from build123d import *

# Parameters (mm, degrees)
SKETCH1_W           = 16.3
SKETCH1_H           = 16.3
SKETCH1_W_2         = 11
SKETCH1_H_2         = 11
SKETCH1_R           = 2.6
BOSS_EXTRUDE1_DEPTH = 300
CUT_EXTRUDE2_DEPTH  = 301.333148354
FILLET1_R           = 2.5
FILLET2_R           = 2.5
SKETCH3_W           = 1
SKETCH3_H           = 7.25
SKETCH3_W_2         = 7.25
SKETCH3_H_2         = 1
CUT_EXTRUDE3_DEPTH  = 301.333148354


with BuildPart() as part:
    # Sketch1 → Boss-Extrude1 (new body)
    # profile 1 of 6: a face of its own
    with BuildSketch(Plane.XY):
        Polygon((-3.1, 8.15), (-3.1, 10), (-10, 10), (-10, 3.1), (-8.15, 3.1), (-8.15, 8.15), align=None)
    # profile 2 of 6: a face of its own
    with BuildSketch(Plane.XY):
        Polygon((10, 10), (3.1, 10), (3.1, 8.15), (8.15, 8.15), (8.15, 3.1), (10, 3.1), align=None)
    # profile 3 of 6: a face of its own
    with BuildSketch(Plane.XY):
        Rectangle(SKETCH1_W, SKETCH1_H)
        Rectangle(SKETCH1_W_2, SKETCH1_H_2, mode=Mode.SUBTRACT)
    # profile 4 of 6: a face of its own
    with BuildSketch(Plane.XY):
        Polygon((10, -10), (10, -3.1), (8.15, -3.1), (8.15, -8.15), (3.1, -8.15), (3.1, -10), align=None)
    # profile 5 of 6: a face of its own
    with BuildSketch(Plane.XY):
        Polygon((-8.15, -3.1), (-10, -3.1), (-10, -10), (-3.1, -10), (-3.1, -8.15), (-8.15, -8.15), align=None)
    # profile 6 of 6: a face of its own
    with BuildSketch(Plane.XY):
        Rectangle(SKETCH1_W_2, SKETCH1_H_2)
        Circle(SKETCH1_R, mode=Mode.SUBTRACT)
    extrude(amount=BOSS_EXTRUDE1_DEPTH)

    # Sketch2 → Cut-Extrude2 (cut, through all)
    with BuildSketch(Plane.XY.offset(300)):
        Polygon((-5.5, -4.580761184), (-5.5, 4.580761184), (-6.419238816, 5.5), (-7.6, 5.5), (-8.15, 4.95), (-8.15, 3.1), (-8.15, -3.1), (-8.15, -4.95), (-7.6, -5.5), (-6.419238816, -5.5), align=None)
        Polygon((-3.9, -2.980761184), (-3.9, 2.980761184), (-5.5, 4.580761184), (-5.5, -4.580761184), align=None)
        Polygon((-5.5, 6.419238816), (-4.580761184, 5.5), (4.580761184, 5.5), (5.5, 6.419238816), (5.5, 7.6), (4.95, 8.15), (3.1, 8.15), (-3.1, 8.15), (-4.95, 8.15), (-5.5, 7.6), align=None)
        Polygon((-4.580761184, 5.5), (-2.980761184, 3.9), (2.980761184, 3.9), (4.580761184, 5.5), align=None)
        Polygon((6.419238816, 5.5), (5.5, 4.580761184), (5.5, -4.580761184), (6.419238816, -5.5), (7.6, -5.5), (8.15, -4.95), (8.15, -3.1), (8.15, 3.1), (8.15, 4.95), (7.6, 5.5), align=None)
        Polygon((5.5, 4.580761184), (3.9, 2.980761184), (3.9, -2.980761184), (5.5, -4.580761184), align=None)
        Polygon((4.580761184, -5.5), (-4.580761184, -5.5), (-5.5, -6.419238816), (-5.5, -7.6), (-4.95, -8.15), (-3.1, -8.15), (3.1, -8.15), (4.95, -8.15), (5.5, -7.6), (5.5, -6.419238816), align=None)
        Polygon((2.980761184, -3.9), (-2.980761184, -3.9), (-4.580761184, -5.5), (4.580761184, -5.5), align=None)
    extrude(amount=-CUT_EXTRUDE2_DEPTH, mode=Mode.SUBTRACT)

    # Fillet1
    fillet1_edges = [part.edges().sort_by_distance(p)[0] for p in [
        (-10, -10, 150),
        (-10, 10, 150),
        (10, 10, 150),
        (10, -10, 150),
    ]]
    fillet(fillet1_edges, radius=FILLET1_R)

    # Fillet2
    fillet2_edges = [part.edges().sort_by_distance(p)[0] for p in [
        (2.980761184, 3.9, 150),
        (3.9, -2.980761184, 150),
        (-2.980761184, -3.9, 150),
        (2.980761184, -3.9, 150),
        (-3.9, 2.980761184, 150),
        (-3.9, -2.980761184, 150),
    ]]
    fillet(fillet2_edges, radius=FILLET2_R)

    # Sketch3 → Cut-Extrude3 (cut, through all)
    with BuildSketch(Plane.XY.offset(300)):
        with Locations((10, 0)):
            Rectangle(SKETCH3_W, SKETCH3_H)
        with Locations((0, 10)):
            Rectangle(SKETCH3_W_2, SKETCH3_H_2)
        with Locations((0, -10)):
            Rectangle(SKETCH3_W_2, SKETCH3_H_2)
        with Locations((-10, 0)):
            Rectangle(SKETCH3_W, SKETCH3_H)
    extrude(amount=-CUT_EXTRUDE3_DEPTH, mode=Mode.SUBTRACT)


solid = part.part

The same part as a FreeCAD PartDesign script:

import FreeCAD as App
import Part
import Sketcher
Q = App.Units.Quantity


def edges_at(feature, points):
    """Names of the edges that pass closest to the given points."""
    edges = feature.Shape.Edges
    near = lambda p: min(range(len(edges)), key=lambda i: edges[i].distToShape(Part.Vertex(*p))[0])
    return sorted({f"Edge{near(p) + 1}" for p in points})


def add_polygon(sketch, points):
    """Adds a closed chain of lines whose ends are joined by coincident constraints."""
    first, n = sketch.GeometryCount, len(points)
    for a, b in zip(points, points[1:] + points[:1]):
        sketch.addGeometry(Part.LineSegment(App.Vector(*a, 0), App.Vector(*b, 0)), False)
    for i in range(n):
        sketch.addConstraint(Sketcher.Constraint("Coincident", first + i, 2, first + (i + 1) % n, 1))

doc = App.newDocument("Part")
body = doc.addObject("PartDesign::Body", "Body")

# Sketch on XY plane
sketch1 = body.newObject("Sketcher::SketchObject", "Sketch")
sketch1.AttachmentSupport = (doc.getObject("XY_Plane"), [""])
sketch1.MapMode = "FlatFace"
add_polygon(sketch1, [(-3.1, 8.15), (-3.1, 10), (-10, 10), (-10, 3.1), (-8.15, 3.1), (-8.15, -3.1), (-10, -3.1), (-10, -10), (-3.1, -10), (-3.1, -8.15), (3.1, -8.15), (3.1, -10), (10, -10), (10, -3.1), (8.15, -3.1), (8.15, 3.1), (10, 3.1), (10, 10), (3.1, 10), (3.1, 8.15)])  # lines 0-19
sketch1.addGeometry(Part.Circle(App.Vector(0, 0, 0), App.Vector(0, 0, 1), 2.6), False)  # 20
sketch1.addConstraint(Sketcher.Constraint("Vertical", 0))
sketch1.addConstraint(Sketcher.Constraint("Horizontal", 1))
sketch1.addConstraint(Sketcher.Constraint("Vertical", 2))
sketch1.addConstraint(Sketcher.Constraint("Horizontal", 3))
sketch1.addConstraint(Sketcher.Constraint("Vertical", 4))
sketch1.addConstraint(Sketcher.Constraint("Horizontal", 5))
sketch1.addConstraint(Sketcher.Constraint("Vertical", 6))
sketch1.addConstraint(Sketcher.Constraint("Horizontal", 7))
sketch1.addConstraint(Sketcher.Constraint("Vertical", 8))
sketch1.addConstraint(Sketcher.Constraint("Horizontal", 9))
sketch1.addConstraint(Sketcher.Constraint("Vertical", 10))
sketch1.addConstraint(Sketcher.Constraint("Horizontal", 11))
sketch1.addConstraint(Sketcher.Constraint("Vertical", 12))
sketch1.addConstraint(Sketcher.Constraint("Horizontal", 13))
sketch1.addConstraint(Sketcher.Constraint("Vertical", 14))
sketch1.addConstraint(Sketcher.Constraint("Horizontal", 15))
sketch1.addConstraint(Sketcher.Constraint("Vertical", 16))
sketch1.addConstraint(Sketcher.Constraint("Horizontal", 17))
sketch1.addConstraint(Sketcher.Constraint("Vertical", 18))
sketch1.addConstraint(Sketcher.Constraint("Horizontal", 19))
sketch1.addConstraint(Sketcher.Constraint("Coincident", 20, 3, -1, 1))
sketch1.addConstraint(Sketcher.Constraint("Symmetric", 0, 2, 10, 2, -1, 1))
sketch1.addConstraint(Sketcher.Constraint("Symmetric", 2, 2, 12, 2, -1, 1))
sketch1.addConstraint(Sketcher.Constraint("Symmetric", 4, 2, 14, 2, -1, 1))
sketch1.addConstraint(Sketcher.Constraint("Symmetric", 6, 2, 16, 2, -1, 1))
sketch1.addConstraint(Sketcher.Constraint("Symmetric", 8, 2, 18, 2, -1, 1))
sketch1.addConstraint(Sketcher.Constraint("Symmetric", 7, 2, 10, 2, -2))
sketch1.addConstraint(Sketcher.Constraint("Symmetric", 5, 2, 12, 2, -2))
sketch1.addConstraint(Sketcher.Constraint("Equal", 15, 0))
sketch1.addConstraint(Sketcher.Constraint("Equal", 17, 2))
sketch1.addConstraint(Sketcher.Constraint("Equal", 19, 4))
sketch1.addConstraint(Sketcher.Constraint("Diameter", 20, Q("5.2 mm")))
sketch1.addConstraint(Sketcher.Constraint("DistanceX", 1, 2, 1, 1, Q("6.9 mm")))
sketch1.addConstraint(Sketcher.Constraint("DistanceX", 9, 1, 9, 2, Q("6.2 mm")))
sketch1.addConstraint(Sketcher.Constraint("DistanceX", 3, 1, 3, 2, Q("1.85 mm")))
pad1 = body.newObject("PartDesign::Pad", "Pad")
pad1.Profile = sketch1
pad1.Length = 300

# Sketch on XY plane
sketch2 = body.newObject("Sketcher::SketchObject", "Sketch001")
sketch2.AttachmentSupport = (doc.getObject("XY_Plane"), [""])
sketch2.MapMode = "FlatFace"
sketch2.AttachmentOffset = App.Placement(App.Vector(0, 0, 300), App.Rotation())
add_polygon(sketch2, [(-6.419239, 5.5), (-7.6, 5.5), (-8.15, 4.95), (-8.15, -4.95), (-7.6, -5.5), (-6.419239, -5.5), (-3.9, -2.980761), (-3.9, 2.980761)])  # lines 0-7
add_polygon(sketch2, [(-5.5, 6.419239), (-2.980761, 3.9), (2.980761, 3.9), (5.5, 6.419239), (5.5, 7.6), (4.95, 8.15), (-4.95, 8.15), (-5.5, 7.6)])  # lines 8-15
add_polygon(sketch2, [(6.419239, 5.5), (3.9, 2.980761), (3.9, -2.980761), (6.419239, -5.5), (7.6, -5.5), (8.15, -4.95), (8.15, 4.95), (7.6, 5.5)])  # lines 16-23
add_polygon(sketch2, [(-5.5, -6.419239), (-5.5, -7.6), (-4.95, -8.15), (4.95, -8.15), (5.5, -7.6), (5.5, -6.419239), (2.980761, -3.9), (-2.980761, -3.9)])  # lines 24-31
sketch2.addConstraint(Sketcher.Constraint("Horizontal", 0))
sketch2.addConstraint(Sketcher.Constraint("Vertical", 2))
sketch2.addConstraint(Sketcher.Constraint("Horizontal", 4))
sketch2.addConstraint(Sketcher.Constraint("Vertical", 6))
sketch2.addConstraint(Sketcher.Constraint("Horizontal", 9))
sketch2.addConstraint(Sketcher.Constraint("Vertical", 11))
sketch2.addConstraint(Sketcher.Constraint("Horizontal", 13))
sketch2.addConstraint(Sketcher.Constraint("Vertical", 15))
sketch2.addConstraint(Sketcher.Constraint("Vertical", 17))
sketch2.addConstraint(Sketcher.Constraint("Horizontal", 19))
sketch2.addConstraint(Sketcher.Constraint("Vertical", 21))
sketch2.addConstraint(Sketcher.Constraint("Horizontal", 23))
sketch2.addConstraint(Sketcher.Constraint("Vertical", 24))
sketch2.addConstraint(Sketcher.Constraint("Horizontal", 26))
sketch2.addConstraint(Sketcher.Constraint("Vertical", 28))
sketch2.addConstraint(Sketcher.Constraint("Horizontal", 30))
sketch2.addConstraint(Sketcher.Constraint("Symmetric", 5, 2, 16, 2, -1, 1))
sketch2.addConstraint(Sketcher.Constraint("Symmetric", 7, 2, 18, 2, -1, 1))
sketch2.addConstraint(Sketcher.Constraint("Symmetric", 1, 2, 20, 2, -1, 1))
sketch2.addConstraint(Sketcher.Constraint("Symmetric", 3, 2, 22, 2, -1, 1))
sketch2.addConstraint(Sketcher.Constraint("Symmetric", 11, 2, 24, 2, -1, 1))
sketch2.addConstraint(Sketcher.Constraint("Symmetric", 12, 2, 25, 2, -1, 1))
sketch2.addConstraint(Sketcher.Constraint("Symmetric", 14, 2, 27, 2, -1, 1))
sketch2.addConstraint(Sketcher.Constraint("Symmetric", 8, 2, 29, 2, -1, 1))
sketch2.addConstraint(Sketcher.Constraint("Symmetric", 11, 2, 14, 2, -2))
sketch2.addConstraint(Sketcher.Constraint("Symmetric", 4, 2, 18, 2, -2))
sketch2.addConstraint(Sketcher.Constraint("Perpendicular", 1, 3))
sketch2.addConstraint(Sketcher.Constraint("Perpendicular", 3, 5))
sketch2.addConstraint(Sketcher.Constraint("Perpendicular", 5, 7))
sketch2.addConstraint(Sketcher.Constraint("Parallel", 7, 8))
sketch2.addConstraint(Sketcher.Constraint("Perpendicular", 8, 10))
sketch2.addConstraint(Sketcher.Constraint("Perpendicular", 10, 12))
sketch2.addConstraint(Sketcher.Constraint("Perpendicular", 12, 14))
sketch2.addConstraint(Sketcher.Constraint("Parallel", 14, 16))
sketch2.addConstraint(Sketcher.Constraint("Perpendicular", 16, 18))
sketch2.addConstraint(Sketcher.Constraint("Perpendicular", 18, 20))
sketch2.addConstraint(Sketcher.Constraint("Perpendicular", 20, 22))
sketch2.addConstraint(Sketcher.Constraint("Perpendicular", 25, 27))
sketch2.addConstraint(Sketcher.Constraint("Perpendicular", 27, 29))
sketch2.addConstraint(Sketcher.Constraint("Perpendicular", 29, 31))
sketch2.addConstraint(Sketcher.Constraint("Horizontal", 10, 2, 15, 2))
sketch2.addConstraint(Sketcher.Constraint("Horizontal", 6, 2, 16, 2))
sketch2.addConstraint(Sketcher.Constraint("Horizontal", 2, 2, 20, 2))
sketch2.addConstraint(Sketcher.Constraint("Horizontal", 28, 2, 31, 2))
sketch2.addConstraint(Sketcher.Constraint("Equal", 26, 2))
sketch2.addConstraint(Sketcher.Constraint("Equal", 30, 6))
sketch2.addConstraint(Sketcher.Constraint("Equal", 23, 11))
sketch2.addConstraint(Sketcher.Constraint("Equal", 7, 8))
sketch2.addConstraint(Sketcher.Constraint("DistanceX", 13, 2, 13, 1, Q("9.9 mm")))
sketch2.addConstraint(Sketcher.Constraint("DistanceY", 3, 2, 0, 2, Q("11 mm")))
sketch2.addConstraint(Sketcher.Constraint("DistanceX", 0, 2, -1, 1, Q("7.6 mm")))
sketch2.addConstraint(Sketcher.Constraint("DistanceX", 5, 2, -1, 1, Q("3.9 mm")))
sketch2.addConstraint(Sketcher.Constraint("DistanceY", -1, 1, 8, 2, Q("3.9 mm")))
sketch2.addConstraint(Sketcher.Constraint("DistanceX", 0, 2, 0, 1, Q("1.180761 mm")))
pocket1 = body.newObject("PartDesign::Pocket", "Pocket")
pocket1.Profile = sketch2
pocket1.Type = "ThroughAll"
doc.recompute()

fillet = body.newObject("PartDesign::Fillet", "Fillet")
fillet.Base = (pocket1, edges_at(pocket1, [
    (-10, -10, 150),
    (-10, 10, 150),
    (10, 10, 150),
    (10, -10, 150),
]))
fillet.Radius = 2.5
doc.recompute()

fillet2 = body.newObject("PartDesign::Fillet", "Fillet001")
fillet2.Base = (fillet, edges_at(fillet, [
    (2.981, 3.9, 150),
    (3.9, -2.981, 150),
    (-2.981, -3.9, 150),
    (2.981, -3.9, 150),
    (-3.9, 2.981, 150),
    (-3.9, -2.981, 150),
]))
fillet2.Radius = 2.5

# Sketch on XY plane
sketch3 = body.newObject("Sketcher::SketchObject", "Sketch002")
sketch3.AttachmentSupport = (doc.getObject("XY_Plane"), [""])
sketch3.MapMode = "FlatFace"
sketch3.AttachmentOffset = App.Placement(App.Vector(0, 0, 300), App.Rotation())
add_polygon(sketch3, [(9.5, 3.625), (9.5, -3.625), (10.5, -3.625), (10.5, 3.625)])  # lines 0-3
add_polygon(sketch3, [(-3.625, 10.5), (-3.625, 9.5), (3.625, 9.5), (3.625, 10.5)])  # lines 4-7
add_polygon(sketch3, [(-3.625, -9.5), (-3.625, -10.5), (3.625, -10.5), (3.625, -9.5)])  # lines 8-11
add_polygon(sketch3, [(-10.5, 3.625), (-10.5, -3.625), (-9.5, -3.625), (-9.5, 3.625)])  # lines 12-15
sketch3.addConstraint(Sketcher.Constraint("Vertical", 0))
sketch3.addConstraint(Sketcher.Constraint("Horizontal", 1))
sketch3.addConstraint(Sketcher.Constraint("Vertical", 2))
sketch3.addConstraint(Sketcher.Constraint("Horizontal", 3))
sketch3.addConstraint(Sketcher.Constraint("Vertical", 4))
sketch3.addConstraint(Sketcher.Constraint("Horizontal", 5))
sketch3.addConstraint(Sketcher.Constraint("Vertical", 6))
sketch3.addConstraint(Sketcher.Constraint("Horizontal", 7))
sketch3.addConstraint(Sketcher.Constraint("Vertical", 8))
sketch3.addConstraint(Sketcher.Constraint("Horizontal", 9))
sketch3.addConstraint(Sketcher.Constraint("Vertical", 10))
sketch3.addConstraint(Sketcher.Constraint("Horizontal", 11))
sketch3.addConstraint(Sketcher.Constraint("Vertical", 12))
sketch3.addConstraint(Sketcher.Constraint("Horizontal", 13))
sketch3.addConstraint(Sketcher.Constraint("Vertical", 14))
sketch3.addConstraint(Sketcher.Constraint("Horizontal", 15))
sketch3.addConstraint(Sketcher.Constraint("Symmetric", 6, 2, 8, 2, -1, 1))
sketch3.addConstraint(Sketcher.Constraint("Symmetric", 4, 2, 10, 2, -1, 1))
sketch3.addConstraint(Sketcher.Constraint("Symmetric", 2, 2, 12, 2, -1, 1))
sketch3.addConstraint(Sketcher.Constraint("Symmetric", 0, 2, 14, 2, -1, 1))
sketch3.addConstraint(Sketcher.Constraint("Horizontal", 1, 2, 12, 2))
sketch3.addConstraint(Sketcher.Constraint("Vertical", 7, 2, 8, 2))
sketch3.addConstraint(Sketcher.Constraint("Equal", 11, 0))
sketch3.addConstraint(Sketcher.Constraint("Equal", 15, 4))
sketch3.addConstraint(Sketcher.Constraint("DistanceX", 1, 1, 1, 2, Q("1 mm")))
sketch3.addConstraint(Sketcher.Constraint("DistanceY", 8, 2, 4, 2, Q("20 mm")))
sketch3.addConstraint(Sketcher.Constraint("DistanceX", 5, 1, 5, 2, Q("7.25 mm")))
sketch3.addConstraint(Sketcher.Constraint("DistanceX", -1, 1, 0, 2, Q("9.5 mm")))
pocket2 = body.newObject("PartDesign::Pocket", "Pocket001")
pocket2.Profile = sketch3
pocket2.Type = "ThroughAll"

doc.recompute()
